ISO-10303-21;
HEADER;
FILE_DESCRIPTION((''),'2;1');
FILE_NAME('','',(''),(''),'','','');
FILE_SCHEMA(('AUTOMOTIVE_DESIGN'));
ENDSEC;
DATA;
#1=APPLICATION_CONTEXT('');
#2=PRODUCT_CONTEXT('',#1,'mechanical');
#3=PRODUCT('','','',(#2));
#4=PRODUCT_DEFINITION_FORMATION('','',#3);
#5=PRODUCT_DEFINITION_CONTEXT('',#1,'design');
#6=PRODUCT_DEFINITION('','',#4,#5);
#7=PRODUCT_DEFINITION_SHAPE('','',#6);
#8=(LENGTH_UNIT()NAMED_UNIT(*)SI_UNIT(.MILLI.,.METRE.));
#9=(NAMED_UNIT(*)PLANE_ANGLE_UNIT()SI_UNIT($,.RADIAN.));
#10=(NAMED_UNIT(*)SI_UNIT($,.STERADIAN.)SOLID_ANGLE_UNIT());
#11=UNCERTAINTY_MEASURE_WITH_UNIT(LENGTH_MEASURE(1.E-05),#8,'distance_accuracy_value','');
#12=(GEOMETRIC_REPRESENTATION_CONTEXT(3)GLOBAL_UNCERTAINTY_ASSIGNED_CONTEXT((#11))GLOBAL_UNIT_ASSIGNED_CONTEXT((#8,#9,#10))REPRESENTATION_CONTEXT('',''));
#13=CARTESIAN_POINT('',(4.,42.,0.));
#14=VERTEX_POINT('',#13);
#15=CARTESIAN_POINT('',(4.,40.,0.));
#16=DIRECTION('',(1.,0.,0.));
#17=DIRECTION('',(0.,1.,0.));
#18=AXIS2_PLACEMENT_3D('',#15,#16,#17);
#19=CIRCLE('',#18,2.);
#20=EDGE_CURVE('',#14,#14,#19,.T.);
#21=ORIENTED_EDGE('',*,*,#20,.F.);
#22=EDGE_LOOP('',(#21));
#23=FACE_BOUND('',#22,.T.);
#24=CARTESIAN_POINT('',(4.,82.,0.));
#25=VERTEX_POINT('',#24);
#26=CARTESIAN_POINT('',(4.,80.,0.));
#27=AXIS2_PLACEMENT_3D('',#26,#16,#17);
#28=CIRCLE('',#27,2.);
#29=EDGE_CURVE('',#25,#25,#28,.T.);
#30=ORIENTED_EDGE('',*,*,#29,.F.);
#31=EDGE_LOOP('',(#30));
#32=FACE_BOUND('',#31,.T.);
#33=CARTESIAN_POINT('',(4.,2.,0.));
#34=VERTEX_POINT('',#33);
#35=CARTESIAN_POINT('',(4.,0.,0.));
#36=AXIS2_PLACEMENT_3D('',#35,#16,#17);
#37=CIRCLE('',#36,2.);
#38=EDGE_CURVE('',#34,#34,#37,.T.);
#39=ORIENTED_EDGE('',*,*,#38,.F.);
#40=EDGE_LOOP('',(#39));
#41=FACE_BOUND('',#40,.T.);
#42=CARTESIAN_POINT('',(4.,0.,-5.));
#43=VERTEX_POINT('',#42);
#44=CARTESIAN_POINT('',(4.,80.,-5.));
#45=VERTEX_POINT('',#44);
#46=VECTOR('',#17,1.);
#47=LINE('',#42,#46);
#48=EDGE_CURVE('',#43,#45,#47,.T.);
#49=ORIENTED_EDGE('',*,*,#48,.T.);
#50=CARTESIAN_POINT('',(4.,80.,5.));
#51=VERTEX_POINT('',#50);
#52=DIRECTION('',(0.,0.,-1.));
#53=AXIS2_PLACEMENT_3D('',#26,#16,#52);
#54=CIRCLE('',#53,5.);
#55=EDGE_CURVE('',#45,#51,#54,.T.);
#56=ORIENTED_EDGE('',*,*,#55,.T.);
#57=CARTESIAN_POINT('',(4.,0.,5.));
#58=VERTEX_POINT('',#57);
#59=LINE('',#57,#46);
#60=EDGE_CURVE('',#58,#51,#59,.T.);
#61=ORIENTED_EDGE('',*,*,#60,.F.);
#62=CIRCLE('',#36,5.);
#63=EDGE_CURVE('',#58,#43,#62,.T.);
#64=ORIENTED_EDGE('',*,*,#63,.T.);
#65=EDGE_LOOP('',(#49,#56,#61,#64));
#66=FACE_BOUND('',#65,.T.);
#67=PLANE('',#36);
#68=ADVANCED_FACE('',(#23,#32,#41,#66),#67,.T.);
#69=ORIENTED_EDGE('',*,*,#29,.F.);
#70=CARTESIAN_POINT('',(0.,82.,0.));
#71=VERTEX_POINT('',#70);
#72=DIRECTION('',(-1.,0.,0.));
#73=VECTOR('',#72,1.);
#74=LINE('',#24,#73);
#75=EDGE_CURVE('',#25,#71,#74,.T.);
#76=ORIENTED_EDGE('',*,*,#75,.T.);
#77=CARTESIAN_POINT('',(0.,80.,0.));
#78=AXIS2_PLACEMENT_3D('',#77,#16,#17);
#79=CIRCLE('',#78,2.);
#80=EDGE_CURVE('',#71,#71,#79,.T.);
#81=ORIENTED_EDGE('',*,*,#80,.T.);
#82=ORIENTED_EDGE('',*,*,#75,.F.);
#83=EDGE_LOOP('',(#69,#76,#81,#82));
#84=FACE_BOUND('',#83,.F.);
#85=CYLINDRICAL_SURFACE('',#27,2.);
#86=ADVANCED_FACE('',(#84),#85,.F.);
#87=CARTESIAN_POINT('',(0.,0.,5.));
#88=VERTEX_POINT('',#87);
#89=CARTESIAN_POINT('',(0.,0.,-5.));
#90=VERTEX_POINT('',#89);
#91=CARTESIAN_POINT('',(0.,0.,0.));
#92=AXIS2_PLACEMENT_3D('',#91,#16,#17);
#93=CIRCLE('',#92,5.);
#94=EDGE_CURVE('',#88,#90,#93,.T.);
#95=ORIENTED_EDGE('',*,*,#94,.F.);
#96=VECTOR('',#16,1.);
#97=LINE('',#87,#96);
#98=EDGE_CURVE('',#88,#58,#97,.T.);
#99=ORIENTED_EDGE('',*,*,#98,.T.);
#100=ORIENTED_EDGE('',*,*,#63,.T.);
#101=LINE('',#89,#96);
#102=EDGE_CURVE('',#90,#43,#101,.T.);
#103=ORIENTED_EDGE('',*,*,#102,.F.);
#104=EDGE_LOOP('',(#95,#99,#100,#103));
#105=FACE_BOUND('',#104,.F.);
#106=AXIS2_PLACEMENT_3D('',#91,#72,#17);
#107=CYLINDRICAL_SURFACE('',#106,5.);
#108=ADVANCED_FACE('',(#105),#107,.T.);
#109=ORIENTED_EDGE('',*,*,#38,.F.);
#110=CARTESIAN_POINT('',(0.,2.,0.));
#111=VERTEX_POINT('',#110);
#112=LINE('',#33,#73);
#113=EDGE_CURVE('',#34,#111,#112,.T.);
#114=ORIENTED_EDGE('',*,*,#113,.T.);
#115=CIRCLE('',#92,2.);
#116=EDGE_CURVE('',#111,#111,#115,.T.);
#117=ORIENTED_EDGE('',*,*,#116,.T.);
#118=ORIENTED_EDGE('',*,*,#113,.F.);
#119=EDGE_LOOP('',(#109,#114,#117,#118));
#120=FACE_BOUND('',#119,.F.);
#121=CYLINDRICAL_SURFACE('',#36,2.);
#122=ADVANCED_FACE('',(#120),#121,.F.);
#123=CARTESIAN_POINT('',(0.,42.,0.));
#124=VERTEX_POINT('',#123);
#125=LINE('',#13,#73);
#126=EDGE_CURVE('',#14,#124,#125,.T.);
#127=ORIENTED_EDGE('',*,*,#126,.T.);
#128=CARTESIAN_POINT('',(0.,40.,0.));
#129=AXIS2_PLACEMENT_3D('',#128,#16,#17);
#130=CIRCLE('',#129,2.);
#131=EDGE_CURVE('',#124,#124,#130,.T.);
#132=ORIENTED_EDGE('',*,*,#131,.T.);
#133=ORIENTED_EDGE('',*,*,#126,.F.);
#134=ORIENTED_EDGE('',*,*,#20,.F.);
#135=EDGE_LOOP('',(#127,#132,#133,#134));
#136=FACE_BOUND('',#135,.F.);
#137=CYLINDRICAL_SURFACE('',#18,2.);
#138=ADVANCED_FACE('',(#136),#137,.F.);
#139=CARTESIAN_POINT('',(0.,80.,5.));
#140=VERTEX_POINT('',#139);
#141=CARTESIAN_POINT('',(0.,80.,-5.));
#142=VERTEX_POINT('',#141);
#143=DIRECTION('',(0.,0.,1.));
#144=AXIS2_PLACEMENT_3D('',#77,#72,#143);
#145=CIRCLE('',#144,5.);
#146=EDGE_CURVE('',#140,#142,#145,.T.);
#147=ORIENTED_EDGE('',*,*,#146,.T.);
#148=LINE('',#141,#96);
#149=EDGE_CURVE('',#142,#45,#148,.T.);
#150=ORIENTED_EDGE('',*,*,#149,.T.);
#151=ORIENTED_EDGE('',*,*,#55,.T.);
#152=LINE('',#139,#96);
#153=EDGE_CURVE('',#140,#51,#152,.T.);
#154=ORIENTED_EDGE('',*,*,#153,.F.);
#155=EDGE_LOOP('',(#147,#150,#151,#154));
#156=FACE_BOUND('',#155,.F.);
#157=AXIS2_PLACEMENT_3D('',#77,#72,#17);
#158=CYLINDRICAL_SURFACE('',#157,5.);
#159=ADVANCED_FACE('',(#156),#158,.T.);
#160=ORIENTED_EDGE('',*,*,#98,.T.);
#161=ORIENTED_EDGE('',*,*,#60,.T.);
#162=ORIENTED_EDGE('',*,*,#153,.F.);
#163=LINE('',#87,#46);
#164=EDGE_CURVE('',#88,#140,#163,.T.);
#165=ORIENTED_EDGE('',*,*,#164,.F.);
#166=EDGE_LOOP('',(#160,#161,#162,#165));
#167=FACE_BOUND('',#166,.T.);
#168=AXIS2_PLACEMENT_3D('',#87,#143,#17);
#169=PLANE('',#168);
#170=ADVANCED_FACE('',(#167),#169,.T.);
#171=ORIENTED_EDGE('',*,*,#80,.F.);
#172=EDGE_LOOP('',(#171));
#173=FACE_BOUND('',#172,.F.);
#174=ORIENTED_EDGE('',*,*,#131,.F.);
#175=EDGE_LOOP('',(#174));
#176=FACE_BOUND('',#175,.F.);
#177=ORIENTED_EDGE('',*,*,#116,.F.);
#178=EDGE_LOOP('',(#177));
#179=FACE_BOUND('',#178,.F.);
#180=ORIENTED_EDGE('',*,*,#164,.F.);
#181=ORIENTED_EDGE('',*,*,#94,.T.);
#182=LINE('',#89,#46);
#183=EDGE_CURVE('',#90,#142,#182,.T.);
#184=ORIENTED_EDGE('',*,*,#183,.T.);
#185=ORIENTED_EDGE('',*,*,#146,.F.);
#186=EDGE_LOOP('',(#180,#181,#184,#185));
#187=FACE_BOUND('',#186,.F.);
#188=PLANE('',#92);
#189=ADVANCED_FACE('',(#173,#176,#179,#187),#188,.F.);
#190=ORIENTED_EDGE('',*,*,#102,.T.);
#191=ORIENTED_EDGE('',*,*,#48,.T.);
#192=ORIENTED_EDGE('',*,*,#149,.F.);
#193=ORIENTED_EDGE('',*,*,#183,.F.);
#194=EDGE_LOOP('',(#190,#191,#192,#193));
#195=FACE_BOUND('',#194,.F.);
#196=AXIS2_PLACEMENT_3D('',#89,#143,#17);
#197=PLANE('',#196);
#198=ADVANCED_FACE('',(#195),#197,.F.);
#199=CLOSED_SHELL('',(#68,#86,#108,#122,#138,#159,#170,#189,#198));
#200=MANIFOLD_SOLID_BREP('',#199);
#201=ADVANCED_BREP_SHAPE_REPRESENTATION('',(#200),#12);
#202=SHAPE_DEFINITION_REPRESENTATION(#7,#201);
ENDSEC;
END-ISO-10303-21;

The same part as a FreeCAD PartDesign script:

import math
import FreeCAD as App
import Part
import Sketcher
from FreeCAD import Vector
Q = App.Units.Quantity

doc = App.newDocument("Part")
body = doc.addObject("PartDesign::Body", "Body")

# Sketch on YZ plane
sketch1 = doc.addObject("Sketcher::SketchObject", "Sketch")
body.addObject(sketch1)
sketch1.AttachmentSupport = (doc.YZ_Plane, [""])
sketch1.MapMode = "FlatFace"
sketch1.addGeometry([
    Part.ArcOfCircle(Part.Circle(Vector(0, 0, 0), Vector(0, 0, 1), 5), math.radians(90), math.radians(270)),
    Part.LineSegment(Vector(0, -5, 0), Vector(80, -5, 0)),
    Part.ArcOfCircle(Part.Circle(Vector(80, 0, 0), Vector(0, 0, 1), 5), math.radians(-90), math.radians(90)),
    Part.LineSegment(Vector(80, 5, 0), Vector(0, 5, 0)),
], False)
sketch1.addConstraint([
    Sketcher.Constraint("Tangent", 0, 2, 1, 1),
    Sketcher.Constraint("Tangent", 1, 2, 2, 1),
    Sketcher.Constraint("Tangent", 2, 2, 3, 1),
    Sketcher.Constraint("Tangent", 3, 2, 0, 1),
    Sketcher.Constraint("Horizontal", 1),
    Sketcher.Constraint("Horizontal", 3),
    Sketcher.Constraint("Coincident", 0, 3, -1, 1),
    Sketcher.Constraint("Radius", 0, Q("5 mm")),
    Sketcher.Constraint("DistanceX", 1, 1, 1, 2, Q("80 mm")),
])
pad1 = doc.addObject("PartDesign::Pad", "Pad")
body.addObject(pad1)
pad1.Profile = sketch1
pad1.Length = 4

# Sketch on YZ plane
sketch2 = doc.addObject("Sketcher::SketchObject", "Sketch001")
body.addObject(sketch2)
sketch2.AttachmentSupport = (doc.YZ_Plane, [""])
sketch2.MapMode = "FlatFace"
sketch2.AttachmentOffset = App.Placement(Vector(0, 0, 4), App.Rotation())
sketch2.addGeometry([
    Part.Circle(Vector(0, 0, 0), Vector(0, 0, 1), 2),
    Part.Circle(Vector(80, 0, 0), Vector(0, 0, 1), 2),
], False)
sketch2.addConstraint([
    Sketcher.Constraint("Coincident", 0, 3, -1, 1),
    Sketcher.Constraint("Equal", 0, 1),
    Sketcher.Constraint("PointOnObject", 1, 3, -1),
    Sketcher.Constraint("Diameter", 0, Q("4 mm")),
    Sketcher.Constraint("DistanceX", -1, 1, 1, 3, Q("80 mm")),
])
pocket1 = doc.addObject("PartDesign::Pocket", "Pocket")
body.addObject(pocket1)
pocket1.Profile = sketch2
pocket1.Length = 20

# Sketch on YZ plane
sketch3 = doc.addObject("Sketcher::SketchObject", "Sketch002")
body.addObject(sketch3)
sketch3.AttachmentSupport = (doc.YZ_Plane, [""])
sketch3.MapMode = "FlatFace"
sketch3.AttachmentOffset = App.Placement(Vector(0, 0, 4), App.Rotation())
sketch3.addGeometry(Part.Circle(Vector(40, 0, 0), Vector(0, 0, 1), 2), False)
sketch3.addConstraint([
    Sketcher.Constraint("PointOnObject", 0, 3, -1),
    Sketcher.Constraint("Diameter", 0, Q("4 mm")),
    Sketcher.Constraint("DistanceX", -1, 1, 0, 3, Q("40 mm")),
])
pocket2 = doc.addObject("PartDesign::Pocket", "Pocket001")
body.addObject(pocket2)
pocket2.Profile = sketch3
pocket2.Length = 20

doc.recompute()
